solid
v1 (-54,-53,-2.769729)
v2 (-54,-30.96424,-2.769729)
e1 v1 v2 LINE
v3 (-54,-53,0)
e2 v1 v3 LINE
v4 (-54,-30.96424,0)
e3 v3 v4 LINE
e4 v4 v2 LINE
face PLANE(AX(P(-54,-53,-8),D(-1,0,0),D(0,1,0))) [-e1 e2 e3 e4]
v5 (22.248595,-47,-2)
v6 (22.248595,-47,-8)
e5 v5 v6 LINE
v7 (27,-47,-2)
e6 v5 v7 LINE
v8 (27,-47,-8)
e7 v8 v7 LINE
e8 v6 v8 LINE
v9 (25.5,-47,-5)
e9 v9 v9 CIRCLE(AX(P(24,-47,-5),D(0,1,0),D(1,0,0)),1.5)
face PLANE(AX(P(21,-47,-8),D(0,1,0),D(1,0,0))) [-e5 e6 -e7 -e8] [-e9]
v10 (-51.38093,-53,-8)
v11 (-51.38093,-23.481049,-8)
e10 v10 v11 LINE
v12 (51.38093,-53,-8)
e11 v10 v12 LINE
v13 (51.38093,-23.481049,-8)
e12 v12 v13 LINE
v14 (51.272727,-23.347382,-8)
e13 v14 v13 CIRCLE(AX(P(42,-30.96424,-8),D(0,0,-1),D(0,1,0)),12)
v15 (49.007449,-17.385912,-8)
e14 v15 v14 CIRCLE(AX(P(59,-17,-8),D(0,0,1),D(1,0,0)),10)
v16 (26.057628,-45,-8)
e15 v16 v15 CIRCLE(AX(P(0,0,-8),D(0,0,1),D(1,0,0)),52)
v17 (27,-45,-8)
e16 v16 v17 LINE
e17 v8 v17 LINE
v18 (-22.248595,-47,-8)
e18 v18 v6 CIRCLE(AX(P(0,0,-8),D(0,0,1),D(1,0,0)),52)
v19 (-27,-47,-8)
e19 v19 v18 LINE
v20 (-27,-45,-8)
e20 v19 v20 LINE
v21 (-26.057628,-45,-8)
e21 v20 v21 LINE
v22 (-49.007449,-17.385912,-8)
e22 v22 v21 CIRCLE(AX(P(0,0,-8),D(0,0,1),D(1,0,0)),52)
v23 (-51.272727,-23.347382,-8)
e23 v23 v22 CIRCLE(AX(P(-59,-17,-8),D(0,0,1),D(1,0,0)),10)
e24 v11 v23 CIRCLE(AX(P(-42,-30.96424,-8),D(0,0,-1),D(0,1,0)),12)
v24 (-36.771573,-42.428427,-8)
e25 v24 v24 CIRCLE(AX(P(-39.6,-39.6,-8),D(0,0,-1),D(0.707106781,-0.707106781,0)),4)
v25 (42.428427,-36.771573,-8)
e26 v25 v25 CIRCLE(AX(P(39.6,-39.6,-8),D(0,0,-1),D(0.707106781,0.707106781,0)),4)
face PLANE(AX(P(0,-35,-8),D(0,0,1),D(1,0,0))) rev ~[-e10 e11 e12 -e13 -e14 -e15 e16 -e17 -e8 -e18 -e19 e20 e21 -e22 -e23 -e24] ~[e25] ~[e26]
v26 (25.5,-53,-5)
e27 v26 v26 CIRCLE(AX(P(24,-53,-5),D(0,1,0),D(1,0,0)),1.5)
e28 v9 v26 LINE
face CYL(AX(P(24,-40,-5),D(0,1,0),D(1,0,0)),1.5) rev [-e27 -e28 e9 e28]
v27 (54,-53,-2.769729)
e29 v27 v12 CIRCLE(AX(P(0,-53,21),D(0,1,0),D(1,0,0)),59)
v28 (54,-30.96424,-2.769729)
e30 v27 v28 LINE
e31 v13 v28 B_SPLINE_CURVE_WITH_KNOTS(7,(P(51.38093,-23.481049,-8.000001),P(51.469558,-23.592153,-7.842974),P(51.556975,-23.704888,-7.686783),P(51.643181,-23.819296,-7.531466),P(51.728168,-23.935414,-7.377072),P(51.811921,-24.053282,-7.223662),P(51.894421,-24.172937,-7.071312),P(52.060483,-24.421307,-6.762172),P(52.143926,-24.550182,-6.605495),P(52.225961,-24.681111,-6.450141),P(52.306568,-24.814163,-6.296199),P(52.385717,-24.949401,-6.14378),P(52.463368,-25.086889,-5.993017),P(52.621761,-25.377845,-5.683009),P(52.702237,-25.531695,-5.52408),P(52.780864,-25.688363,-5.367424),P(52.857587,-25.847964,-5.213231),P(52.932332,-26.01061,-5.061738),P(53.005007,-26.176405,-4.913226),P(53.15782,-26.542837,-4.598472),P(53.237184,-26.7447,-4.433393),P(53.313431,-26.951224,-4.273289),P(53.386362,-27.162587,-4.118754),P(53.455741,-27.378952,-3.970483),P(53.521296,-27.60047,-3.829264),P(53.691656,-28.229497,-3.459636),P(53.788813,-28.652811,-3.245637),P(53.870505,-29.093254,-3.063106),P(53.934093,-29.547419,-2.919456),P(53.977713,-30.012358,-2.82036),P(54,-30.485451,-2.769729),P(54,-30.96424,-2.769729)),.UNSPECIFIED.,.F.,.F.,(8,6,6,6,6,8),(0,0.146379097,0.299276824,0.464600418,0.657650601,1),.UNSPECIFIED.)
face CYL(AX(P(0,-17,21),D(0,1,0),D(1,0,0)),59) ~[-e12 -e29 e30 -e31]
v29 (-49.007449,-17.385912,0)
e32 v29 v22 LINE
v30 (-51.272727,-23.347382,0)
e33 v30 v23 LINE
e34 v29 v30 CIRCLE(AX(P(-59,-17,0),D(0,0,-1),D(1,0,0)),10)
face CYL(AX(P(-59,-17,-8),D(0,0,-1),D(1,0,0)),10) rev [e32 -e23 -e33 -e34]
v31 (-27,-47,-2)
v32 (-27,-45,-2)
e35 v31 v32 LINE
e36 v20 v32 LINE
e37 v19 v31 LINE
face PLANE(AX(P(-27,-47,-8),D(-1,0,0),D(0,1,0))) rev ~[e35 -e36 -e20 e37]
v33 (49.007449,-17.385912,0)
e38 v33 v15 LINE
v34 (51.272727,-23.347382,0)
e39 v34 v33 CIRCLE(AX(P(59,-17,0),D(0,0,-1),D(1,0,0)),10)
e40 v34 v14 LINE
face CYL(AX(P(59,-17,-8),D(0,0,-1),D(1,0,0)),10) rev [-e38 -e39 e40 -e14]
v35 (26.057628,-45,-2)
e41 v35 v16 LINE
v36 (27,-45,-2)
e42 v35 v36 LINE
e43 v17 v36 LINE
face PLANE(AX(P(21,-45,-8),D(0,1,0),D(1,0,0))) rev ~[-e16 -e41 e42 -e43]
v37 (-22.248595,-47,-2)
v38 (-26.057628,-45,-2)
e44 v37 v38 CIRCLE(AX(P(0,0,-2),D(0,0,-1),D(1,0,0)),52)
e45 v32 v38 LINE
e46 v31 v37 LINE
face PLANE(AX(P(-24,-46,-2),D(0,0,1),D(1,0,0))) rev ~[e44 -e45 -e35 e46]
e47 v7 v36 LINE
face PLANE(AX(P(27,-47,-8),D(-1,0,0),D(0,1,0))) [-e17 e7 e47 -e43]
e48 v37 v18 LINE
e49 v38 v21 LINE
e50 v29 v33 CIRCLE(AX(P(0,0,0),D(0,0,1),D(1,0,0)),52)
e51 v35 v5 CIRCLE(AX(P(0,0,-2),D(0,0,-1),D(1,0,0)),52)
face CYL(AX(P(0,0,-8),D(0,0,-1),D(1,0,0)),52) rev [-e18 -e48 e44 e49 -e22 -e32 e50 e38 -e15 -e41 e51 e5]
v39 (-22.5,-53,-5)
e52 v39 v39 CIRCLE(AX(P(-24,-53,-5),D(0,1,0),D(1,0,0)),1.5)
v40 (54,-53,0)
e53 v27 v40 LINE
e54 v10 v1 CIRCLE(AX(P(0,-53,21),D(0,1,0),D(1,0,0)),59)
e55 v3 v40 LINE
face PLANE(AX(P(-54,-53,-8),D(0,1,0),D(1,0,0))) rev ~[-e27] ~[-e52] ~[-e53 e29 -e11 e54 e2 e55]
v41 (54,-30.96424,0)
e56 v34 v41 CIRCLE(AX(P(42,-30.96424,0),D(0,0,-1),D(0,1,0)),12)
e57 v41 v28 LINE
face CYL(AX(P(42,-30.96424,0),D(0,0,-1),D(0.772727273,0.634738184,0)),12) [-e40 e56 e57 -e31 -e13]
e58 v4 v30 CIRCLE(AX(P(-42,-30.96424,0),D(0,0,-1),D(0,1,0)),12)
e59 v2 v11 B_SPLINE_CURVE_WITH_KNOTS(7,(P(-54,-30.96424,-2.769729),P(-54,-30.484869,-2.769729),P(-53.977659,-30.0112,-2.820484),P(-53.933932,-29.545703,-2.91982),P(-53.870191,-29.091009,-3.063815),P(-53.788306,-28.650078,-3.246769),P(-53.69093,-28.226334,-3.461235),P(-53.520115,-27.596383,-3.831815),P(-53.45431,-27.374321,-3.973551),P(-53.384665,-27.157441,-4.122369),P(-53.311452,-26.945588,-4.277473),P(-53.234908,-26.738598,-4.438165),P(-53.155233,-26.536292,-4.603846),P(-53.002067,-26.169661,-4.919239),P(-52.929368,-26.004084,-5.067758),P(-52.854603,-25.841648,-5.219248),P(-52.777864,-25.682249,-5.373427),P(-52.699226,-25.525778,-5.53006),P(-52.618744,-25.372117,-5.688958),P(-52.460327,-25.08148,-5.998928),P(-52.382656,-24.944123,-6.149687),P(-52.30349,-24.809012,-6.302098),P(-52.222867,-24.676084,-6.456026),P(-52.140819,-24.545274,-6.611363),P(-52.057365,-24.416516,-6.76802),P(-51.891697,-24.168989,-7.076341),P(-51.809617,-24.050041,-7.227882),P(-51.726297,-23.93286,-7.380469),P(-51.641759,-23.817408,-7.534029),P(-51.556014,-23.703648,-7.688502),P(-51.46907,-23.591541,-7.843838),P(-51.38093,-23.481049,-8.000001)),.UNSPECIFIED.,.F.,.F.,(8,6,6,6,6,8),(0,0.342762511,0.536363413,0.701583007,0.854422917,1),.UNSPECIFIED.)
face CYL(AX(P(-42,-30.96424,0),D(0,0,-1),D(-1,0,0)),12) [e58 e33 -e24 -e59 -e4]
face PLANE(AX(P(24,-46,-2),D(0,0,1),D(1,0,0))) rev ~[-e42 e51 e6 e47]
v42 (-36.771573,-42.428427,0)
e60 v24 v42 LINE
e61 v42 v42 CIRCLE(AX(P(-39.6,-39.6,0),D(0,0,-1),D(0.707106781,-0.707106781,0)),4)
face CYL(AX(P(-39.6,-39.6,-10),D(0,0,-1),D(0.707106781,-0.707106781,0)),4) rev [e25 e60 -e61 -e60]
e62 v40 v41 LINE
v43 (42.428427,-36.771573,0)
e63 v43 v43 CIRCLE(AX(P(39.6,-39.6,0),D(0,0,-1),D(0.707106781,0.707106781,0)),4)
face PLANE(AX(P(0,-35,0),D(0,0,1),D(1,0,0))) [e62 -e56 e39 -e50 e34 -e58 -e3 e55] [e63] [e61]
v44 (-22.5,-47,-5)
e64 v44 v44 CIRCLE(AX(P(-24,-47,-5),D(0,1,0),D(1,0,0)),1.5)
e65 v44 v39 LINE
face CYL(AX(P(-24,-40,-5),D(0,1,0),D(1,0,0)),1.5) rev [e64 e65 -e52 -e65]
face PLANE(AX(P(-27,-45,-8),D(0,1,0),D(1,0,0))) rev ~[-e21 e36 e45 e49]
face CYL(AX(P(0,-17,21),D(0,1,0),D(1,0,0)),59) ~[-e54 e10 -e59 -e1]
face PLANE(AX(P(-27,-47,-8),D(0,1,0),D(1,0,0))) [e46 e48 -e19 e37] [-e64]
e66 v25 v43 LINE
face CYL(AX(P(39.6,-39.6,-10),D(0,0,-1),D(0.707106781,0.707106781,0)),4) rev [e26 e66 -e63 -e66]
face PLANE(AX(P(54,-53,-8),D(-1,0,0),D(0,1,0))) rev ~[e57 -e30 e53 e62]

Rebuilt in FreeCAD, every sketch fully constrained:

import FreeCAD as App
import Part
import Sketcher
Q = App.Units.Quantity


def edges_at(feature, points):
    """Names of the edges that pass closest to the given points."""
    edges = feature.Shape.Edges
    near = lambda p: min(range(len(edges)), key=lambda i: edges[i].distToShape(Part.Vertex(*p))[0])
    return sorted({f"Edge{near(p) + 1}" for p in points})

doc = App.newDocument("Part")
body = doc.addObject("PartDesign::Body", "Body")

# Sketch on XZ plane
sketch1 = body.newObject("Sketcher::SketchObject", "Sketch")
sketch1.AttachmentSupport = (doc.getObject("XZ_Plane"), [""])
sketch1.MapMode = "FlatFace"
sketch1.AttachmentOffset = App.Placement(App.Vector(0, 0, 17), App.Rotation())
sketch1.addGeometry(Part.Circle(App.Vector(0, 21, 0), App.Vector(0, 0, 1), 59), False)
sketch1.addConstraint([
    Sketcher.Constraint("PointOnObject", 0, 3, -2),
    Sketcher.Constraint("Diameter", 0, Q("118 mm")),
    Sketcher.Constraint("DistanceY", -1, 1, 0, 3, Q("21 mm")),
])
pad1 = body.newObject("PartDesign::Pad", "Pad")
pad1.Profile = sketch1
pad1.Length = 40
body2 = doc.addObject("PartDesign::Body", "Body001")

# Sketch on XZ plane
sketch2 = body2.newObject("Sketcher::SketchObject", "Sketch001")
sketch2.AttachmentSupport = (doc.getObject("XZ_Plane001"), [""])
sketch2.MapMode = "FlatFace"
sketch2.AttachmentOffset = App.Placement(App.Vector(0, 0, 40), App.Rotation())
sketch2.addGeometry(Part.Circle(App.Vector(24, -5, 0), App.Vector(0, 0, 1), 1.5), False)
sketch2.addConstraint([
    Sketcher.Constraint("Diameter", 0, Q("3 mm")),
    Sketcher.Constraint("DistanceX", -1, 1, 0, 3, Q("24 mm")),
    Sketcher.Constraint("DistanceY", 0, 3, -1, 1, Q("5 mm")),
])
pad2 = body2.newObject("PartDesign::Pad", "Pad001")
pad2.Profile = sketch2
pad2.Length = 20
body3 = doc.addObject("PartDesign::Body", "Body002")

# Sketch on XZ plane
sketch3 = body3.newObject("Sketcher::SketchObject", "Sketch002")
sketch3.AttachmentSupport = (doc.getObject("XZ_Plane002"), [""])
sketch3.MapMode = "FlatFace"
sketch3.AttachmentOffset = App.Placement(App.Vector(0, 0, 40), App.Rotation())
sketch3.addGeometry(Part.Circle(App.Vector(51, 7, 0), App.Vector(0, 0, 1), 1.5), False)
sketch3.addConstraint([
    Sketcher.Constraint("Diameter", 0, Q("3 mm")),
    Sketcher.Constraint("DistanceX", -1, 1, 0, 3, Q("51 mm")),
    Sketcher.Constraint("DistanceY", -1, 1, 0, 3, Q("7 mm")),
])
pad3 = body3.newObject("PartDesign::Pad", "Pad002")
pad3.Profile = sketch3
pad3.Length = 20
body4 = doc.addObject("PartDesign::Body", "Body003")

# Sketch on XZ plane
sketch4 = body4.newObject("Sketcher::SketchObject", "Sketch003")
sketch4.AttachmentSupport = (doc.getObject("XZ_Plane003"), [""])
sketch4.MapMode = "FlatFace"
sketch4.AttachmentOffset = App.Placement(App.Vector(0, 0, 40), App.Rotation())
sketch4.addGeometry(Part.Circle(App.Vector(-51, 7, 0), App.Vector(0, 0, 1), 1.5), False)
sketch4.addConstraint([
    Sketcher.Constraint("Diameter", 0, Q("3 mm")),
    Sketcher.Constraint("DistanceX", 0, 3, -1, 1, Q("51 mm")),
    Sketcher.Constraint("DistanceY", -1, 1, 0, 3, Q("7 mm")),
])
pad4 = body4.newObject("PartDesign::Pad", "Pad003")
pad4.Profile = sketch4
pad4.Length = 20
body5 = doc.addObject("PartDesign::Body", "Body004")
body5.AllowCompound = True

# Sketch on XZ plane
sketch5 = body5.newObject("Sketcher::SketchObject", "Sketch004")
sketch5.AttachmentSupport = (doc.getObject("XZ_Plane004"), [""])
sketch5.MapMode = "FlatFace"
sketch5.AttachmentOffset = App.Placement(App.Vector(0, 0, 40), App.Rotation())
sketch5.addGeometry(Part.Circle(App.Vector(-24, -5, 0), App.Vector(0, 0, 1), 1.5), False)
sketch5.addConstraint([
    Sketcher.Constraint("Diameter", 0, Q("3 mm")),
    Sketcher.Constraint("DistanceX", 0, 3, -1, 1, Q("24 mm")),
    Sketcher.Constraint("DistanceY", 0, 3, -1, 1, Q("5 mm")),
])
pad5 = body5.newObject("PartDesign::Pad", "Pad004")
pad5.Profile = sketch5
pad5.Length = 20
doc.recompute()

boolean = body5.newObject("PartDesign::Boolean", "Boolean")
boolean.Type = "Fuse"
boolean.addObjects([body2])
doc.recompute()

boolean2 = body5.newObject("PartDesign::Boolean", "Boolean001")
boolean2.Type = "Fuse"
boolean2.addObjects([body3])
doc.recompute()

boolean3 = body5.newObject("PartDesign::Boolean", "Boolean002")
boolean3.Type = "Fuse"
boolean3.addObjects([body4])
body6 = doc.addObject("PartDesign::Body", "Body005")

# Sketch on XY plane
sketch6 = body6.newObject("Sketcher::SketchObject", "Sketch005")
sketch6.AttachmentSupport = (doc.getObject("XY_Plane005"), [""])
sketch6.MapMode = "FlatFace"
sketch6.AttachmentOffset = App.Placement(App.Vector(0, 0, -8), App.Rotation())
sketch6.addGeometry([
    Part.LineSegment(App.Vector(21, -45, 0), App.Vector(21, -47, 0)),
    Part.LineSegment(App.Vector(21, -47, 0), App.Vector(27, -47, 0)),
    Part.LineSegment(App.Vector(27, -47, 0), App.Vector(27, -45, 0)),
    Part.LineSegment(App.Vector(27, -45, 0), App.Vector(21, -45, 0)),
], False)
sketch6.addConstraint([
    Sketcher.Constraint("Coincident", 0, 2, 1, 1),
    Sketcher.Constraint("Coincident", 1, 2, 2, 1),
    Sketcher.Constraint("Coincident", 2, 2, 3, 1),
    Sketcher.Constraint("Coincident", 3, 2, 0, 1),
    Sketcher.Constraint("Vertical", 0),
    Sketcher.Constraint("Horizontal", 1),
    Sketcher.Constraint("Vertical", 2),
    Sketcher.Constraint("Horizontal", 3),
    Sketcher.Constraint("DistanceX", 1, 1, 1, 2, Q("6 mm")),
    Sketcher.Constraint("DistanceY", 0, 2, 0, 1, Q("2 mm")),
    Sketcher.Constraint("DistanceX", -1, 1, 0, 2, Q("21 mm")),
    Sketcher.Constraint("DistanceY", 0, 2, -1, 1, Q("47 mm")),
])
pad6 = body6.newObject("PartDesign::Pad", "Pad005")
pad6.Profile = sketch6
pad6.Length = 6
body7 = doc.addObject("PartDesign::Body", "Body006")

# Sketch on XY plane
sketch7 = body7.newObject("Sketcher::SketchObject", "Sketch006")
sketch7.AttachmentSupport = (doc.getObject("XY_Plane006"), [""])
sketch7.MapMode = "FlatFace"
sketch7.AttachmentOffset = App.Placement(App.Vector(0, 0, 4), App.Rotation())
sketch7.addGeometry([
    Part.LineSegment(App.Vector(48, -43, 0), App.Vector(48, -45, 0)),
    Part.LineSegment(App.Vector(48, -45, 0), App.Vector(54, -45, 0)),
    Part.LineSegment(App.Vector(54, -45, 0), App.Vector(54, -43, 0)),
    Part.LineSegment(App.Vector(54, -43, 0), App.Vector(48, -43, 0)),
], False)
sketch7.addConstraint([
    Sketcher.Constraint("Coincident", 0, 2, 1, 1),
    Sketcher.Constraint("Coincident", 1, 2, 2, 1),
    Sketcher.Constraint("Coincident", 2, 2, 3, 1),
    Sketcher.Constraint("Coincident", 3, 2, 0, 1),
    Sketcher.Constraint("Vertical", 0),
    Sketcher.Constraint("Horizontal", 1),
    Sketcher.Constraint("Vertical", 2),
    Sketcher.Constraint("Horizontal", 3),
    Sketcher.Constraint("DistanceX", 1, 1, 1, 2, Q("6 mm")),
    Sketcher.Constraint("DistanceY", 0, 2, 0, 1, Q("2 mm")),
    Sketcher.Constraint("DistanceX", -1, 1, 0, 2, Q("48 mm")),
    Sketcher.Constraint("DistanceY", 0, 2, -1, 1, Q("45 mm")),
])
pad7 = body7.newObject("PartDesign::Pad", "Pad006")
pad7.Profile = sketch7
pad7.Length = 6
body8 = doc.addObject("PartDesign::Body", "Body007")

# Sketch on XY plane
sketch8 = body8.newObject("Sketcher::SketchObject", "Sketch007")
sketch8.AttachmentSupport = (doc.getObject("XY_Plane007"), [""])
sketch8.MapMode = "FlatFace"
sketch8.AttachmentOffset = App.Placement(App.Vector(0, 0, 4), App.Rotation())
sketch8.addGeometry([
    Part.LineSegment(App.Vector(-54, -43, 0), App.Vector(-54, -45, 0)),
    Part.LineSegment(App.Vector(-54, -45, 0), App.Vector(-48, -45, 0)),
    Part.LineSegment(App.Vector(-48, -45, 0), App.Vector(-48, -43, 0)),
    Part.LineSegment(App.Vector(-48, -43, 0), App.Vector(-54, -43, 0)),
], False)
sketch8.addConstraint([
    Sketcher.Constraint("Coincident", 0, 2, 1, 1),
    Sketcher.Constraint("Coincident", 1, 2, 2, 1),
    Sketcher.Constraint("Coincident", 2, 2, 3, 1),
    Sketcher.Constraint("Coincident", 3, 2, 0, 1),
    Sketcher.Constraint("Vertical", 0),
    Sketcher.Constraint("Horizontal", 1),
    Sketcher.Constraint("Vertical", 2),
    Sketcher.Constraint("Horizontal", 3),
    Sketcher.Constraint("DistanceX", 1, 1, 1, 2, Q("6 mm")),
    Sketcher.Constraint("DistanceY", 0, 2, 0, 1, Q("2 mm")),
    Sketcher.Constraint("DistanceX", 0, 2, -1, 1, Q("54 mm")),
    Sketcher.Constraint("DistanceY", 0, 2, -1, 1, Q("45 mm")),
])
pad8 = body8.newObject("PartDesign::Pad", "Pad007")
pad8.Profile = sketch8
pad8.Length = 6
body9 = doc.addObject("PartDesign::Body", "Body008")
body9.AllowCompound = True

# Sketch on XY plane
sketch9 = body9.newObject("Sketcher::SketchObject", "Sketch008")
sketch9.AttachmentSupport = (doc.getObject("XY_Plane008"), [""])
sketch9.MapMode = "FlatFace"
sketch9.AttachmentOffset = App.Placement(App.Vector(0, 0, -8), App.Rotation())
sketch9.addGeometry([
    Part.LineSegment(App.Vector(-27, -45, 0), App.Vector(-27, -47, 0)),
    Part.LineSegment(App.Vector(-27, -47, 0), App.Vector(-21, -47, 0)),
    Part.LineSegment(App.Vector(-21, -47, 0), App.Vector(-21, -45, 0)),
    Part.LineSegment(App.Vector(-21, -45, 0), App.Vector(-27, -45, 0)),
], False)
sketch9.addConstraint([
    Sketcher.Constraint("Coincident", 0, 2, 1, 1),
    Sketcher.Constraint("Coincident", 1, 2, 2, 1),
    Sketcher.Constraint("Coincident", 2, 2, 3, 1),
    Sketcher.Constraint("Coincident", 3, 2, 0, 1),
    Sketcher.Constraint("Vertical", 0),
    Sketcher.Constraint("Horizontal", 1),
    Sketcher.Constraint("Vertical", 2),
    Sketcher.Constraint("Horizontal", 3),
    Sketcher.Constraint("DistanceX", 1, 1, 1, 2, Q("6 mm")),
    Sketcher.Constraint("DistanceY", 0, 2, 0, 1, Q("2 mm")),
    Sketcher.Constraint("DistanceX", 0, 2, -1, 1, Q("27 mm")),
    Sketcher.Constraint("DistanceY", 0, 2, -1, 1, Q("47 mm")),
])
pad9 = body9.newObject("PartDesign::Pad", "Pad008")
pad9.Profile = sketch9
pad9.Length = 6
doc.recompute()

boolean4 = body9.newObject("PartDesign::Boolean", "Boolean003")
boolean4.Type = "Fuse"
boolean4.addObjects([body6])
doc.recompute()

boolean5 = body9.newObject("PartDesign::Boolean", "Boolean004")
boolean5.Type = "Fuse"
boolean5.addObjects([body7])
doc.recompute()

boolean6 = body9.newObject("PartDesign::Boolean", "Boolean005")
boolean6.Type = "Fuse"
boolean6.addObjects([body8])
body10 = doc.addObject("PartDesign::Body", "Body009")

# Sketch on XY plane
sketch10 = body10.newObject("Sketcher::SketchObject", "Sketch009")
sketch10.AttachmentSupport = (doc.getObject("XY_Plane009"), [""])
sketch10.MapMode = "FlatFace"
sketch10.addGeometry(Part.Circle(App.Vector(0, 0, 0), App.Vector(0, 0, 1), 4), False)
sketch10.addConstraint([
    Sketcher.Constraint("Coincident", 0, 3, -1, 1),
    Sketcher.Constraint("Diameter", 0, Q("8 mm")),
])
pad10 = body10.newObject("PartDesign::Pad", "Pad009")
pad10.Profile = sketch10
pad10.Length = 20
body11 = doc.addObject("PartDesign::Body", "Body010")
doc.recompute()

body10.Placement = App.Placement(App.Vector(39.6, -39.6, -10), App.Rotation(App.Vector(0, 0, 1), 45))
boolean7 = body11.newObject("PartDesign::Boolean", "Boolean006")
boolean7.Type = "Fuse"
boolean7.addObjects([body10])
body12 = doc.addObject("PartDesign::Body", "Body011")

# Sketch on XY plane
sketch11 = body12.newObject("Sketcher::SketchObject", "Sketch010")
sketch11.AttachmentSupport = (doc.getObject("XY_Plane011"), [""])
sketch11.MapMode = "FlatFace"
sketch11.addGeometry(Part.Circle(App.Vector(0, 0, 0), App.Vector(0, 0, 1), 4), False)
sketch11.addConstraint([
    Sketcher.Constraint("Coincident", 0, 3, -1, 1),
    Sketcher.Constraint("Diameter", 0, Q("8 mm")),
])
pad11 = body12.newObject("PartDesign::Pad", "Pad010")
pad11.Profile = sketch11
pad11.Length = 20
body13 = doc.addObject("PartDesign::Body", "Body012")
body13.AllowCompound = True
doc.recompute()

body12.Placement = App.Placement(App.Vector(-39.6, -39.6, -10), App.Rotation(App.Vector(0, 0, -1), 45))
boolean8 = body13.newObject("PartDesign::Boolean", "Boolean007")
boolean8.Type = "Fuse"
boolean8.addObjects([body12])
doc.recompute()

boolean9 = body13.newObject("PartDesign::Boolean", "Boolean008")
boolean9.Type = "Fuse"
boolean9.addObjects([body11])
body14 = doc.addObject("PartDesign::Body", "Body013")

# Sketch on XY plane
sketch12 = body14.newObject("Sketcher::SketchObject", "Sketch011")
sketch12.AttachmentSupport = (doc.getObject("XY_Plane013"), [""])
sketch12.MapMode = "FlatFace"
sketch12.addGeometry(Part.Circle(App.Vector(-59, -17, 0), App.Vector(0, 0, 1), 10), False)
sketch12.addConstraint([
    Sketcher.Constraint("Diameter", 0, Q("20 mm")),
    Sketcher.Constraint("DistanceX", 0, 3, -1, 1, Q("59 mm")),
    Sketcher.Constraint("DistanceY", 0, 3, -1, 1, Q("17 mm")),
])
pad12 = body14.newObject("PartDesign::Pad", "Pad011")
pad12.Profile = sketch12
pad12.Length = 40
body15 = doc.addObject("PartDesign::Body", "Body014")
body15.AllowCompound = True

# Sketch on XY plane
sketch13 = body15.newObject("Sketcher::SketchObject", "Sketch012")
sketch13.AttachmentSupport = (doc.getObject("XY_Plane014"), [""])
sketch13.MapMode = "FlatFace"
sketch13.addGeometry(Part.Circle(App.Vector(59, -17, 0), App.Vector(0, 0, 1), 10), False)
sketch13.addConstraint([
    Sketcher.Constraint("Diameter", 0, Q("20 mm")),
    Sketcher.Constraint("DistanceX", -1, 1, 0, 3, Q("59 mm")),
    Sketcher.Constraint("DistanceY", 0, 3, -1, 1, Q("17 mm")),
])
pad13 = body15.newObject("PartDesign::Pad", "Pad012")
pad13.Profile = sketch13
pad13.Length = 40
doc.recompute()

boolean10 = body15.newObject("PartDesign::Boolean", "Boolean009")
boolean10.Type = "Fuse"
boolean10.addObjects([body14])
body16 = doc.addObject("PartDesign::Body", "Body015")

# Sketch on XY plane
sketch14 = body16.newObject("Sketcher::SketchObject", "Sketch013")
sketch14.AttachmentSupport = (doc.getObject("XY_Plane015"), [""])
sketch14.MapMode = "FlatFace"
sketch14.AttachmentOffset = App.Placement(App.Vector(0, 0, 20), App.Rotation())
sketch14.addGeometry(Part.Circle(App.Vector(0, 0, 0), App.Vector(0, 0, 1), 52), False)
sketch14.addConstraint([
    Sketcher.Constraint("Coincident", 0, 3, -1, 1),
    Sketcher.Constraint("Diameter", 0, Q("104 mm")),
])
pad14 = body16.newObject("PartDesign::Pad", "Pad013")
pad14.Profile = sketch14
pad14.Length = 8
body17 = doc.addObject("PartDesign::Body", "Body016")

# Sketch on XY plane
sketch15 = body17.newObject("Sketcher::SketchObject", "Sketch014")
sketch15.AttachmentSupport = (doc.getObject("XY_Plane016"), [""])
sketch15.MapMode = "FlatFace"
sketch15.AttachmentOffset = App.Placement(App.Vector(0, 0, 20), App.Rotation())
sketch15.addGeometry([
    Part.LineSegment(App.Vector(-54, -17, 0), App.Vector(-54, -53, 0)),
    Part.LineSegment(App.Vector(-54, -53, 0), App.Vector(54, -53, 0)),
    Part.LineSegment(App.Vector(54, -53, 0), App.Vector(54, -17, 0)),
    Part.LineSegment(App.Vector(54, -17, 0), App.Vector(-54, -17, 0)),
], False)
sketch15.addConstraint([
    Sketcher.Constraint("Coincident", 0, 2, 1, 1),
    Sketcher.Constraint("Coincident", 1, 2, 2, 1),
    Sketcher.Constraint("Coincident", 2, 2, 3, 1),
    Sketcher.Constraint("Coincident", 3, 2, 0, 1),
    Sketcher.Constraint("Vertical", 0),
    Sketcher.Constraint("Horizontal", 1),
    Sketcher.Constraint("Vertical", 2),
    Sketcher.Constraint("Horizontal", 3),
    Sketcher.Constraint("DistanceX", 1, 1, 1, 2, Q("108 mm")),
    Sketcher.Constraint("DistanceY", 0, 2, 0, 1, Q("36 mm")),
    Sketcher.Constraint("DistanceX", 0, 2, -1, 1, Q("54 mm")),
    Sketcher.Constraint("DistanceY", 0, 2, -1, 1, Q("53 mm")),
])
pad15 = body17.newObject("PartDesign::Pad", "Pad014")
pad15.Profile = sketch15
pad15.Length = 8
doc.recompute()

boolean11 = body17.newObject("PartDesign::Boolean", "Boolean010")
boolean11.Type = "Cut"
boolean11.addObjects([body16])
body18 = doc.addObject("PartDesign::Body", "Body017")
doc.recompute()

body17.Placement = App.Placement(App.Vector(0, 0, -20), App.Rotation(App.Vector(0, 0, 1), 0))
boolean12 = body18.newObject("PartDesign::Boolean", "Boolean011")
boolean12.Type = "Fuse"
boolean12.addObjects([body17])
doc.recompute()

boolean13 = body18.newObject("PartDesign::Boolean", "Boolean012")
boolean13.Type = "Cut"
boolean13.addObjects([body15])
body19 = doc.addObject("PartDesign::Body", "Body018")
doc.recompute()

body18.Placement = App.Placement(App.Vector(0, 0, -8), App.Rotation(App.Vector(0, 0, 1), 0))
boolean14 = body19.newObject("PartDesign::Boolean", "Boolean013")
boolean14.Type = "Fuse"
boolean14.addObjects([body18])
doc.recompute()

boolean15 = body19.newObject("PartDesign::Boolean", "Boolean014")
boolean15.Type = "Cut"
boolean15.addObjects([body13])
doc.recompute()

boolean16 = body19.newObject("PartDesign::Boolean", "Boolean015")
boolean16.Type = "Cut"
boolean16.addObjects([body9])
doc.recompute()

boolean17 = body19.newObject("PartDesign::Boolean", "Boolean016")
boolean17.Type = "Cut"
boolean17.addObjects([body5])
doc.recompute()

fillet = body19.newObject("PartDesign::Fillet", "Fillet")
fillet.Base = (boolean17, edges_at(boolean17, [(-54, -25.66, -4), (54, -25.66, -4)]))
fillet.Radius = 12
doc.recompute()

boolean18 = body19.newObject("PartDesign::Boolean", "Boolean017")
boolean18.Type = "Common"
boolean18.addObjects([body])

doc.recompute()
